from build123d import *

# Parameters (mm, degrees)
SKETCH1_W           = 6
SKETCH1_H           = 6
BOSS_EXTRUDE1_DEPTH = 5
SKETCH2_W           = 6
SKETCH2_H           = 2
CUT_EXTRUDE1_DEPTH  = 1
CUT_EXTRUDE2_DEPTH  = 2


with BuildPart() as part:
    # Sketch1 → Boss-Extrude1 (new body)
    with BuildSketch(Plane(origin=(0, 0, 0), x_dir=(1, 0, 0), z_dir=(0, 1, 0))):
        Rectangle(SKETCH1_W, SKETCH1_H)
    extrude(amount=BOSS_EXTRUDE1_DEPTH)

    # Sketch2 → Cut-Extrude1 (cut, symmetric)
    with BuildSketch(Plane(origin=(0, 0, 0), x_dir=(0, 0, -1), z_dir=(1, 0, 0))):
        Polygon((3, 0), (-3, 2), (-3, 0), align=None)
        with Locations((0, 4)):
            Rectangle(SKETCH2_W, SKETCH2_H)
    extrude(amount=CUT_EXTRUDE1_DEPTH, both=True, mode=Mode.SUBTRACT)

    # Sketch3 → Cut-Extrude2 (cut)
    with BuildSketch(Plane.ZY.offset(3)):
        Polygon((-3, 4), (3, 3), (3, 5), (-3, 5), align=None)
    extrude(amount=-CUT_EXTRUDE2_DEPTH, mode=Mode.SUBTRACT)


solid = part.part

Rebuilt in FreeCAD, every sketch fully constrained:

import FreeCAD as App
import Part
import Sketcher


def add_polygon(sketch, points):
    """Adds a closed chain of lines whose ends are joined by coincident constraints."""
    first, n = sketch.GeometryCount, len(points)
    for a, b in zip(points, points[1:] + points[:1]):
        sketch.addGeometry(Part.LineSegment(App.Vector(*a, 0), App.Vector(*b, 0)), False)
    for i in range(n):
        sketch.addConstraint(Sketcher.Constraint("Coincident", first + i, 2, first + (i + 1) % n, 1))

doc = App.newDocument("Part")
body = doc.addObject("PartDesign::Body", "Body")

sketch1 = doc.addObject("Sketcher::SketchObject", "Sketch")
body.addObject(sketch1)
sketch1.AttachmentSupport = (doc.XZ_Plane, [""])
sketch1.MapMode = "FlatFace"
add_polygon(sketch1, [(-3, -3), (-3, 3), (3, 3), (3, -3)])
sketch1.addConstraint([
    Sketcher.Constraint("Vertical", 0),
    Sketcher.Constraint("Horizontal", 1),
    Sketcher.Constraint("Vertical", 2),
    Sketcher.Constraint("Horizontal", 3),
    Sketcher.Constraint("Symmetric", 0, 2, 2, 2, -1, 1),
    Sketcher.Constraint("Equal", 3, 0),
    Sketcher.Constraint("DistanceX", 1, 1, 1, 2, 6.0),
])
pad1 = doc.addObject("PartDesign::Pad", "Pad")
body.addObject(pad1)
pad1.Profile = sketch1
pad1.Length = 5
pad1.Reversed = True

sketch2 = doc.addObject("Sketcher::SketchObject", "Sketch001")
body.addObject(sketch2)
sketch2.AttachmentSupport = (doc.YZ_Plane, [""])
sketch2.MapMode = "FlatFace"
add_polygon(sketch2, [(0, -3), (2, 3), (0, 3)])
add_polygon(sketch2, [(5, 3), (3, 3), (3, -3), (5, -3)])
sketch2.addConstraint([
    Sketcher.Constraint("Horizontal", 1),
    Sketcher.Constraint("Vertical", 2),
    Sketcher.Constraint("Horizontal", 3),
    Sketcher.Constraint("Vertical", 4),
    Sketcher.Constraint("Horizontal", 5),
    Sketcher.Constraint("Vertical", 6),
    Sketcher.Constraint("Symmetric", 1, 2, 2, 2, -1, 1),
    Sketcher.Constraint("Horizontal", 1, 2, 3, 2),
    Sketcher.Constraint("Horizontal", 2, 2, 4, 2),
    Sketcher.Constraint("Equal", 1, 3),
    Sketcher.Constraint("DistanceX", 1, 2, 1, 1, 2.0),
    Sketcher.Constraint("DistanceY", 2, 2, 2, 1, 6.0),
    Sketcher.Constraint("DistanceX", -1, 1, 3, 2, 3.0),
])
pocket1 = doc.addObject("PartDesign::Pocket", "Pocket")
body.addObject(pocket1)
pocket1.Profile = sketch2
pocket1.Length = 2
pocket1.Midplane = True

sketch3 = doc.addObject("Sketcher::SketchObject", "Sketch002")
body.addObject(sketch3)
sketch3.AttachmentSupport = (doc.YZ_Plane, [""])
sketch3.MapMode = "FlatFace"
sketch3.AttachmentOffset = App.Placement(App.Vector(0, 0, -3), App.Rotation())
add_polygon(sketch3, [(4, -3), (3, 3), (5, 3), (5, -3)])
sketch3.addConstraint([
    Sketcher.Constraint("Horizontal", 1),
    Sketcher.Constraint("Vertical", 2),
    Sketcher.Constraint("Horizontal", 3),
    Sketcher.Constraint("DistanceX", 1, 1, 1, 2, 2.0),
    Sketcher.Constraint("DistanceX", 3, 2, 3, 1, 1.0),
    Sketcher.Constraint("DistanceY", 2, 2, 2, 1, 6.0),
    Sketcher.Constraint("DistanceX", -1, 1, 0, 2, 3.0),
    Sketcher.Constraint("DistanceY", -1, 1, 0, 2, 3.0),
])
pocket2 = doc.addObject("PartDesign::Pocket", "Pocket001")
body.addObject(pocket2)
pocket2.Profile = sketch3
pocket2.Length = 2
pocket2.Reversed = True

doc.recompute()
